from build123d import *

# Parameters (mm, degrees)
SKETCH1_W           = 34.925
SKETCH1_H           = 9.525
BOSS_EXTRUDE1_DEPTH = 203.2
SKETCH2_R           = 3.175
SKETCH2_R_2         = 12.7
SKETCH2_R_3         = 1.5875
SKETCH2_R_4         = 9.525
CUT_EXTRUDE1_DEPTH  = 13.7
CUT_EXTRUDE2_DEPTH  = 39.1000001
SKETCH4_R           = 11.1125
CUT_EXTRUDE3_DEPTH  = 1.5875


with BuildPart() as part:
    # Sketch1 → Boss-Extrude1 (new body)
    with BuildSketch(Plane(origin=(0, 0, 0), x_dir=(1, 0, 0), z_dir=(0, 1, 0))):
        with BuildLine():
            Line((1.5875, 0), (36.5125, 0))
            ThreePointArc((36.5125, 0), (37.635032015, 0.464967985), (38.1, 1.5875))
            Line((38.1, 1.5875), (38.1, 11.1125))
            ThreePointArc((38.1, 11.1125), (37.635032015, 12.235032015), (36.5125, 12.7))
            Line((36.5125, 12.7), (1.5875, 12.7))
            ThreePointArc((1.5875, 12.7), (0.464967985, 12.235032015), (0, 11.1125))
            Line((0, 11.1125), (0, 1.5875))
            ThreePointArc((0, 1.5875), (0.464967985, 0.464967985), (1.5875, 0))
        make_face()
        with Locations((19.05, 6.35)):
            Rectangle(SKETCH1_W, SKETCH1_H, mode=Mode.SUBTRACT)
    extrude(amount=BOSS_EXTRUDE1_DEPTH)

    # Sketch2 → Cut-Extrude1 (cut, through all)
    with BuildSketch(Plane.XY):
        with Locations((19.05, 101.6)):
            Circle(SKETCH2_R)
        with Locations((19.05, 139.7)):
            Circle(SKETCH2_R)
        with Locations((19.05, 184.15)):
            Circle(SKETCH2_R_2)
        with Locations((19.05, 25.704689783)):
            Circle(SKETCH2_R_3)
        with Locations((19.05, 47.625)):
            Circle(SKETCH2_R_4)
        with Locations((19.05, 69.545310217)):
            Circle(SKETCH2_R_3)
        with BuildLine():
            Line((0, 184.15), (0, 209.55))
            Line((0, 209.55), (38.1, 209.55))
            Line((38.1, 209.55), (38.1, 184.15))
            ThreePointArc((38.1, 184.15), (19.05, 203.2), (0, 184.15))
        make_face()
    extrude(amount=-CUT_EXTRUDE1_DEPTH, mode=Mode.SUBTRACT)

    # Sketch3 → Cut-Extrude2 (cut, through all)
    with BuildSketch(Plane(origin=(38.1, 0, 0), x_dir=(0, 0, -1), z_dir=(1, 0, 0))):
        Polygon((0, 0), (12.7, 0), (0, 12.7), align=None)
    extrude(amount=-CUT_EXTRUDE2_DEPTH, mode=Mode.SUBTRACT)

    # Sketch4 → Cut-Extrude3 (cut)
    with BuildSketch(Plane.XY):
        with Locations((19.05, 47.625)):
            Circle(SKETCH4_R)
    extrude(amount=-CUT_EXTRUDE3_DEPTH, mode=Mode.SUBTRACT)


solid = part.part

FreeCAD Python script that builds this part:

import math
import FreeCAD as App
import Part
import Sketcher
Q = App.Units.Quantity


def add_polygon(sketch, points):
    """Adds a closed chain of lines whose ends are joined by coincident constraints."""
    first, n = sketch.GeometryCount, len(points)
    for a, b in zip(points, points[1:] + points[:1]):
        sketch.addGeometry(Part.LineSegment(App.Vector(*a, 0), App.Vector(*b, 0)), False)
    for i in range(n):
        sketch.addConstraint(Sketcher.Constraint("Coincident", first + i, 2, first + (i + 1) % n, 1))

doc = App.newDocument("Part")
body = doc.addObject("PartDesign::Body", "Body")

# Sketch on XZ plane
sketch1 = body.newObject("Sketcher::SketchObject", "Sketch")
sketch1.AttachmentSupport = (doc.getObject("XZ_Plane"), [""])
sketch1.MapMode = "FlatFace"
sketch1.addGeometry(Part.LineSegment(App.Vector(1.5875, 0, 0), App.Vector(36.5125, 0, 0)), False)  # 0
sketch1.addGeometry(Part.ArcOfCircle(Part.Circle(App.Vector(36.5125, -1.5875, 0), App.Vector(0, 0, 1), 1.5875), math.radians(0), math.radians(90)), False)  # 1
sketch1.addGeometry(Part.LineSegment(App.Vector(38.1, -1.5875, 0), App.Vector(38.1, -11.1125, 0)), False)  # 2
sketch1.addGeometry(Part.ArcOfCircle(Part.Circle(App.Vector(36.5125, -11.1125, 0), App.Vector(0, 0, 1), 1.5875), math.radians(-90), math.radians(0)), False)  # 3
sketch1.addGeometry(Part.LineSegment(App.Vector(36.5125, -12.7, 0), App.Vector(1.5875, -12.7, 0)), False)  # 4
sketch1.addGeometry(Part.ArcOfCircle(Part.Circle(App.Vector(1.5875, -11.1125, 0), App.Vector(0, 0, 1), 1.5875), math.radians(180), math.radians(270)), False)  # 5
sketch1.addGeometry(Part.LineSegment(App.Vector(0, -11.1125, 0), App.Vector(0, -1.5875, 0)), False)  # 6
sketch1.addGeometry(Part.ArcOfCircle(Part.Circle(App.Vector(1.5875, -1.5875, 0), App.Vector(0, 0, 1), 1.5875), math.radians(90), math.radians(180)), False)  # 7
add_polygon(sketch1, [(36.5125, -1.5875), (1.5875, -1.5875), (1.5875, -11.1125), (36.5125, -11.1125)])  # lines 8-11
sketch1.addConstraint([
    Sketcher.Constraint("Tangent", 0, 2, 1, 2),
    Sketcher.Constraint("Tangent", 1, 1, 2, 1),
    Sketcher.Constraint("Tangent", 2, 2, 3, 2),
    Sketcher.Constraint("Tangent", 3, 1, 4, 1),
    Sketcher.Constraint("Tangent", 4, 2, 5, 2),
    Sketcher.Constraint("Tangent", 5, 1, 6, 1),
    Sketcher.Constraint("Tangent", 6, 2, 7, 2),
    Sketcher.Constraint("Tangent", 7, 1, 0, 1),
    Sketcher.Constraint("Horizontal", 0),
    Sketcher.Constraint("Vertical", 2),
    Sketcher.Constraint("Horizontal", 4),
    Sketcher.Constraint("Vertical", 6),
    Sketcher.Constraint("Horizontal", 8),
    Sketcher.Constraint("Vertical", 9),
    Sketcher.Constraint("Horizontal", 10),
    Sketcher.Constraint("Vertical", 11),
    Sketcher.Constraint("Coincident", 8, 2, 7, 3),
    Sketcher.Constraint("Coincident", 9, 2, 5, 3),
    Sketcher.Constraint("Coincident", 10, 2, 3, 3),
    Sketcher.Constraint("Equal", 1, 3),
    Sketcher.Constraint("PointOnObject", 0, 2, -1),
    Sketcher.Constraint("PointOnObject", 5, 1, -2),
    Sketcher.Constraint("Radius", 1, Q("0.0625 in")),
    Sketcher.Constraint("DistanceX", -1, 1, 1, 1, Q("1.5 in")),
    Sketcher.Constraint("DistanceY", 3, 1, -1, 1, Q("0.5 in")),
])
pad1 = body.newObject("PartDesign::Pad", "Pad")
pad1.Profile = sketch1
pad1.Length = Q("8 in")
pad1.Reversed = True

# Sketch on XY plane
sketch2 = body.newObject("Sketcher::SketchObject", "Sketch001")
sketch2.AttachmentSupport = (doc.getObject("XY_Plane"), [""])
sketch2.MapMode = "FlatFace"
sketch2.addGeometry([
    Part.Circle(App.Vector(19.05, 101.6, 0), App.Vector(0, 0, 1), 3.175),  # 0
    Part.Circle(App.Vector(19.05, 139.7, 0), App.Vector(0, 0, 1), 3.175),  # 1
    Part.Circle(App.Vector(19.05, 184.15, 0), App.Vector(0, 0, 1), 12.7),  # 2
    Part.Circle(App.Vector(19.05, 25.70469, 0), App.Vector(0, 0, 1), 1.5875),  # 3
    Part.Circle(App.Vector(19.05, 47.625, 0), App.Vector(0, 0, 1), 9.525),  # 4
    Part.Circle(App.Vector(19.05, 69.54531, 0), App.Vector(0, 0, 1), 1.5875),  # 5
    Part.LineSegment(App.Vector(0, 209.55, 0), App.Vector(0, 184.15, 0)),  # 6
    Part.ArcOfCircle(Part.Circle(App.Vector(19.05, 184.15, 0), App.Vector(0, 0, 1), 19.05), math.radians(0), math.radians(180)),  # 7
    Part.LineSegment(App.Vector(38.1, 184.15, 0), App.Vector(38.1, 209.55, 0)),  # 8
    Part.LineSegment(App.Vector(38.1, 209.55, 0), App.Vector(0, 209.55, 0)),  # 9
], False)
sketch2.addConstraint([
    Sketcher.Constraint("Tangent", 6, 2, 7, 2),
    Sketcher.Constraint("Tangent", 7, 1, 8, 1),
    Sketcher.Constraint("Coincident", 8, 2, 9, 1),
    Sketcher.Constraint("Coincident", 9, 2, 6, 1),
    Sketcher.Constraint("Vertical", 6),
    Sketcher.Constraint("Vertical", 8),
    Sketcher.Constraint("Horizontal", 9),
    Sketcher.Constraint("Coincident", 7, 3, 2, 3),
    Sketcher.Constraint("Equal", 0, 1),
    Sketcher.Constraint("Equal", 3, 5),
    Sketcher.Constraint("PointOnObject", 6, 2, -2),
    Sketcher.Constraint("Vertical", 0, 3, 1, 3),
    Sketcher.Constraint("Vertical", 1, 3, 2, 3),
    Sketcher.Constraint("Vertical", 2, 3, 3, 3),
    Sketcher.Constraint("Vertical", 3, 3, 4, 3),
    Sketcher.Constraint("Vertical", 4, 3, 5, 3),
    Sketcher.Constraint("Diameter", 2, Q("1 in")),
    Sketcher.Constraint("Diameter", 0, Q("0.25 in")),
    Sketcher.Constraint("Diameter", 4, Q("0.75 in")),
    Sketcher.Constraint("DistanceY", 6, 2, 6, 1, Q("1 in")),
    Sketcher.Constraint("Radius", 7, Q("0.75 in")),
    Sketcher.Constraint("Diameter", 3, Q("0.125 in")),
    Sketcher.Constraint("DistanceY", -1, 1, 0, 3, Q("4 in")),
    Sketcher.Constraint("DistanceY", -1, 1, 1, 3, Q("5.5 in")),
    Sketcher.Constraint("DistanceY", -1, 1, 2, 3, Q("7.25 in")),
    Sketcher.Constraint("DistanceY", -1, 1, 4, 3, Q("1.875 in")),
    Sketcher.Constraint("DistanceY", -1, 1, 3, 3, Q("25.70469 mm")),
    Sketcher.Constraint("DistanceY", -1, 1, 5, 3, Q("69.54531 mm")),
])
pocket1 = body.newObject("PartDesign::Pocket", "Pocket")
pocket1.Profile = sketch2
pocket1.Type = "ThroughAll"

# Sketch on YZ plane
sketch3 = body.newObject("Sketcher::SketchObject", "Sketch002")
sketch3.AttachmentSupport = (doc.getObject("YZ_Plane"), [""])
sketch3.MapMode = "FlatFace"
sketch3.AttachmentOffset = App.Placement(App.Vector(0, 0, 1.5 * 25.4), App.Rotation())
add_polygon(sketch3, [(0, 0), (0, -12.7), (12.7, 0)])  # lines 0-2
sketch3.addConstraint([
    Sketcher.Constraint("Vertical", 0),
    Sketcher.Constraint("Horizontal", 2),
    Sketcher.Constraint("Coincident", 2, 2, -1, 1),
    Sketcher.Constraint("Equal", 2, 0),
    Sketcher.Constraint("DistanceX", 2, 2, 2, 1, Q("0.5 in")),
])
pocket2 = body.newObject("PartDesign::Pocket", "Pocket001")
pocket2.Profile = sketch3
pocket2.Type = "ThroughAll"

# Sketch on XY plane
sketch4 = body.newObject("Sketcher::SketchObject", "Sketch003")
sketch4.AttachmentSupport = (doc.getObject("XY_Plane"), [""])
sketch4.MapMode = "FlatFace"
sketch4.addGeometry(Part.Circle(App.Vector(19.05, 47.625, 0), App.Vector(0, 0, 1), 11.1125), False)
sketch4.addConstraint([
    Sketcher.Constraint("Diameter", 0, Q("0.875 in")),
    Sketcher.Constraint("DistanceX", -1, 1, 0, 3, Q("0.75 in")),
    Sketcher.Constraint("DistanceY", -1, 1, 0, 3, Q("1.875 in")),
])
pocket3 = body.newObject("PartDesign::Pocket", "Pocket002")
pocket3.Profile = sketch4
pocket3.Length = Q("0.0625 in")

doc.recompute()
